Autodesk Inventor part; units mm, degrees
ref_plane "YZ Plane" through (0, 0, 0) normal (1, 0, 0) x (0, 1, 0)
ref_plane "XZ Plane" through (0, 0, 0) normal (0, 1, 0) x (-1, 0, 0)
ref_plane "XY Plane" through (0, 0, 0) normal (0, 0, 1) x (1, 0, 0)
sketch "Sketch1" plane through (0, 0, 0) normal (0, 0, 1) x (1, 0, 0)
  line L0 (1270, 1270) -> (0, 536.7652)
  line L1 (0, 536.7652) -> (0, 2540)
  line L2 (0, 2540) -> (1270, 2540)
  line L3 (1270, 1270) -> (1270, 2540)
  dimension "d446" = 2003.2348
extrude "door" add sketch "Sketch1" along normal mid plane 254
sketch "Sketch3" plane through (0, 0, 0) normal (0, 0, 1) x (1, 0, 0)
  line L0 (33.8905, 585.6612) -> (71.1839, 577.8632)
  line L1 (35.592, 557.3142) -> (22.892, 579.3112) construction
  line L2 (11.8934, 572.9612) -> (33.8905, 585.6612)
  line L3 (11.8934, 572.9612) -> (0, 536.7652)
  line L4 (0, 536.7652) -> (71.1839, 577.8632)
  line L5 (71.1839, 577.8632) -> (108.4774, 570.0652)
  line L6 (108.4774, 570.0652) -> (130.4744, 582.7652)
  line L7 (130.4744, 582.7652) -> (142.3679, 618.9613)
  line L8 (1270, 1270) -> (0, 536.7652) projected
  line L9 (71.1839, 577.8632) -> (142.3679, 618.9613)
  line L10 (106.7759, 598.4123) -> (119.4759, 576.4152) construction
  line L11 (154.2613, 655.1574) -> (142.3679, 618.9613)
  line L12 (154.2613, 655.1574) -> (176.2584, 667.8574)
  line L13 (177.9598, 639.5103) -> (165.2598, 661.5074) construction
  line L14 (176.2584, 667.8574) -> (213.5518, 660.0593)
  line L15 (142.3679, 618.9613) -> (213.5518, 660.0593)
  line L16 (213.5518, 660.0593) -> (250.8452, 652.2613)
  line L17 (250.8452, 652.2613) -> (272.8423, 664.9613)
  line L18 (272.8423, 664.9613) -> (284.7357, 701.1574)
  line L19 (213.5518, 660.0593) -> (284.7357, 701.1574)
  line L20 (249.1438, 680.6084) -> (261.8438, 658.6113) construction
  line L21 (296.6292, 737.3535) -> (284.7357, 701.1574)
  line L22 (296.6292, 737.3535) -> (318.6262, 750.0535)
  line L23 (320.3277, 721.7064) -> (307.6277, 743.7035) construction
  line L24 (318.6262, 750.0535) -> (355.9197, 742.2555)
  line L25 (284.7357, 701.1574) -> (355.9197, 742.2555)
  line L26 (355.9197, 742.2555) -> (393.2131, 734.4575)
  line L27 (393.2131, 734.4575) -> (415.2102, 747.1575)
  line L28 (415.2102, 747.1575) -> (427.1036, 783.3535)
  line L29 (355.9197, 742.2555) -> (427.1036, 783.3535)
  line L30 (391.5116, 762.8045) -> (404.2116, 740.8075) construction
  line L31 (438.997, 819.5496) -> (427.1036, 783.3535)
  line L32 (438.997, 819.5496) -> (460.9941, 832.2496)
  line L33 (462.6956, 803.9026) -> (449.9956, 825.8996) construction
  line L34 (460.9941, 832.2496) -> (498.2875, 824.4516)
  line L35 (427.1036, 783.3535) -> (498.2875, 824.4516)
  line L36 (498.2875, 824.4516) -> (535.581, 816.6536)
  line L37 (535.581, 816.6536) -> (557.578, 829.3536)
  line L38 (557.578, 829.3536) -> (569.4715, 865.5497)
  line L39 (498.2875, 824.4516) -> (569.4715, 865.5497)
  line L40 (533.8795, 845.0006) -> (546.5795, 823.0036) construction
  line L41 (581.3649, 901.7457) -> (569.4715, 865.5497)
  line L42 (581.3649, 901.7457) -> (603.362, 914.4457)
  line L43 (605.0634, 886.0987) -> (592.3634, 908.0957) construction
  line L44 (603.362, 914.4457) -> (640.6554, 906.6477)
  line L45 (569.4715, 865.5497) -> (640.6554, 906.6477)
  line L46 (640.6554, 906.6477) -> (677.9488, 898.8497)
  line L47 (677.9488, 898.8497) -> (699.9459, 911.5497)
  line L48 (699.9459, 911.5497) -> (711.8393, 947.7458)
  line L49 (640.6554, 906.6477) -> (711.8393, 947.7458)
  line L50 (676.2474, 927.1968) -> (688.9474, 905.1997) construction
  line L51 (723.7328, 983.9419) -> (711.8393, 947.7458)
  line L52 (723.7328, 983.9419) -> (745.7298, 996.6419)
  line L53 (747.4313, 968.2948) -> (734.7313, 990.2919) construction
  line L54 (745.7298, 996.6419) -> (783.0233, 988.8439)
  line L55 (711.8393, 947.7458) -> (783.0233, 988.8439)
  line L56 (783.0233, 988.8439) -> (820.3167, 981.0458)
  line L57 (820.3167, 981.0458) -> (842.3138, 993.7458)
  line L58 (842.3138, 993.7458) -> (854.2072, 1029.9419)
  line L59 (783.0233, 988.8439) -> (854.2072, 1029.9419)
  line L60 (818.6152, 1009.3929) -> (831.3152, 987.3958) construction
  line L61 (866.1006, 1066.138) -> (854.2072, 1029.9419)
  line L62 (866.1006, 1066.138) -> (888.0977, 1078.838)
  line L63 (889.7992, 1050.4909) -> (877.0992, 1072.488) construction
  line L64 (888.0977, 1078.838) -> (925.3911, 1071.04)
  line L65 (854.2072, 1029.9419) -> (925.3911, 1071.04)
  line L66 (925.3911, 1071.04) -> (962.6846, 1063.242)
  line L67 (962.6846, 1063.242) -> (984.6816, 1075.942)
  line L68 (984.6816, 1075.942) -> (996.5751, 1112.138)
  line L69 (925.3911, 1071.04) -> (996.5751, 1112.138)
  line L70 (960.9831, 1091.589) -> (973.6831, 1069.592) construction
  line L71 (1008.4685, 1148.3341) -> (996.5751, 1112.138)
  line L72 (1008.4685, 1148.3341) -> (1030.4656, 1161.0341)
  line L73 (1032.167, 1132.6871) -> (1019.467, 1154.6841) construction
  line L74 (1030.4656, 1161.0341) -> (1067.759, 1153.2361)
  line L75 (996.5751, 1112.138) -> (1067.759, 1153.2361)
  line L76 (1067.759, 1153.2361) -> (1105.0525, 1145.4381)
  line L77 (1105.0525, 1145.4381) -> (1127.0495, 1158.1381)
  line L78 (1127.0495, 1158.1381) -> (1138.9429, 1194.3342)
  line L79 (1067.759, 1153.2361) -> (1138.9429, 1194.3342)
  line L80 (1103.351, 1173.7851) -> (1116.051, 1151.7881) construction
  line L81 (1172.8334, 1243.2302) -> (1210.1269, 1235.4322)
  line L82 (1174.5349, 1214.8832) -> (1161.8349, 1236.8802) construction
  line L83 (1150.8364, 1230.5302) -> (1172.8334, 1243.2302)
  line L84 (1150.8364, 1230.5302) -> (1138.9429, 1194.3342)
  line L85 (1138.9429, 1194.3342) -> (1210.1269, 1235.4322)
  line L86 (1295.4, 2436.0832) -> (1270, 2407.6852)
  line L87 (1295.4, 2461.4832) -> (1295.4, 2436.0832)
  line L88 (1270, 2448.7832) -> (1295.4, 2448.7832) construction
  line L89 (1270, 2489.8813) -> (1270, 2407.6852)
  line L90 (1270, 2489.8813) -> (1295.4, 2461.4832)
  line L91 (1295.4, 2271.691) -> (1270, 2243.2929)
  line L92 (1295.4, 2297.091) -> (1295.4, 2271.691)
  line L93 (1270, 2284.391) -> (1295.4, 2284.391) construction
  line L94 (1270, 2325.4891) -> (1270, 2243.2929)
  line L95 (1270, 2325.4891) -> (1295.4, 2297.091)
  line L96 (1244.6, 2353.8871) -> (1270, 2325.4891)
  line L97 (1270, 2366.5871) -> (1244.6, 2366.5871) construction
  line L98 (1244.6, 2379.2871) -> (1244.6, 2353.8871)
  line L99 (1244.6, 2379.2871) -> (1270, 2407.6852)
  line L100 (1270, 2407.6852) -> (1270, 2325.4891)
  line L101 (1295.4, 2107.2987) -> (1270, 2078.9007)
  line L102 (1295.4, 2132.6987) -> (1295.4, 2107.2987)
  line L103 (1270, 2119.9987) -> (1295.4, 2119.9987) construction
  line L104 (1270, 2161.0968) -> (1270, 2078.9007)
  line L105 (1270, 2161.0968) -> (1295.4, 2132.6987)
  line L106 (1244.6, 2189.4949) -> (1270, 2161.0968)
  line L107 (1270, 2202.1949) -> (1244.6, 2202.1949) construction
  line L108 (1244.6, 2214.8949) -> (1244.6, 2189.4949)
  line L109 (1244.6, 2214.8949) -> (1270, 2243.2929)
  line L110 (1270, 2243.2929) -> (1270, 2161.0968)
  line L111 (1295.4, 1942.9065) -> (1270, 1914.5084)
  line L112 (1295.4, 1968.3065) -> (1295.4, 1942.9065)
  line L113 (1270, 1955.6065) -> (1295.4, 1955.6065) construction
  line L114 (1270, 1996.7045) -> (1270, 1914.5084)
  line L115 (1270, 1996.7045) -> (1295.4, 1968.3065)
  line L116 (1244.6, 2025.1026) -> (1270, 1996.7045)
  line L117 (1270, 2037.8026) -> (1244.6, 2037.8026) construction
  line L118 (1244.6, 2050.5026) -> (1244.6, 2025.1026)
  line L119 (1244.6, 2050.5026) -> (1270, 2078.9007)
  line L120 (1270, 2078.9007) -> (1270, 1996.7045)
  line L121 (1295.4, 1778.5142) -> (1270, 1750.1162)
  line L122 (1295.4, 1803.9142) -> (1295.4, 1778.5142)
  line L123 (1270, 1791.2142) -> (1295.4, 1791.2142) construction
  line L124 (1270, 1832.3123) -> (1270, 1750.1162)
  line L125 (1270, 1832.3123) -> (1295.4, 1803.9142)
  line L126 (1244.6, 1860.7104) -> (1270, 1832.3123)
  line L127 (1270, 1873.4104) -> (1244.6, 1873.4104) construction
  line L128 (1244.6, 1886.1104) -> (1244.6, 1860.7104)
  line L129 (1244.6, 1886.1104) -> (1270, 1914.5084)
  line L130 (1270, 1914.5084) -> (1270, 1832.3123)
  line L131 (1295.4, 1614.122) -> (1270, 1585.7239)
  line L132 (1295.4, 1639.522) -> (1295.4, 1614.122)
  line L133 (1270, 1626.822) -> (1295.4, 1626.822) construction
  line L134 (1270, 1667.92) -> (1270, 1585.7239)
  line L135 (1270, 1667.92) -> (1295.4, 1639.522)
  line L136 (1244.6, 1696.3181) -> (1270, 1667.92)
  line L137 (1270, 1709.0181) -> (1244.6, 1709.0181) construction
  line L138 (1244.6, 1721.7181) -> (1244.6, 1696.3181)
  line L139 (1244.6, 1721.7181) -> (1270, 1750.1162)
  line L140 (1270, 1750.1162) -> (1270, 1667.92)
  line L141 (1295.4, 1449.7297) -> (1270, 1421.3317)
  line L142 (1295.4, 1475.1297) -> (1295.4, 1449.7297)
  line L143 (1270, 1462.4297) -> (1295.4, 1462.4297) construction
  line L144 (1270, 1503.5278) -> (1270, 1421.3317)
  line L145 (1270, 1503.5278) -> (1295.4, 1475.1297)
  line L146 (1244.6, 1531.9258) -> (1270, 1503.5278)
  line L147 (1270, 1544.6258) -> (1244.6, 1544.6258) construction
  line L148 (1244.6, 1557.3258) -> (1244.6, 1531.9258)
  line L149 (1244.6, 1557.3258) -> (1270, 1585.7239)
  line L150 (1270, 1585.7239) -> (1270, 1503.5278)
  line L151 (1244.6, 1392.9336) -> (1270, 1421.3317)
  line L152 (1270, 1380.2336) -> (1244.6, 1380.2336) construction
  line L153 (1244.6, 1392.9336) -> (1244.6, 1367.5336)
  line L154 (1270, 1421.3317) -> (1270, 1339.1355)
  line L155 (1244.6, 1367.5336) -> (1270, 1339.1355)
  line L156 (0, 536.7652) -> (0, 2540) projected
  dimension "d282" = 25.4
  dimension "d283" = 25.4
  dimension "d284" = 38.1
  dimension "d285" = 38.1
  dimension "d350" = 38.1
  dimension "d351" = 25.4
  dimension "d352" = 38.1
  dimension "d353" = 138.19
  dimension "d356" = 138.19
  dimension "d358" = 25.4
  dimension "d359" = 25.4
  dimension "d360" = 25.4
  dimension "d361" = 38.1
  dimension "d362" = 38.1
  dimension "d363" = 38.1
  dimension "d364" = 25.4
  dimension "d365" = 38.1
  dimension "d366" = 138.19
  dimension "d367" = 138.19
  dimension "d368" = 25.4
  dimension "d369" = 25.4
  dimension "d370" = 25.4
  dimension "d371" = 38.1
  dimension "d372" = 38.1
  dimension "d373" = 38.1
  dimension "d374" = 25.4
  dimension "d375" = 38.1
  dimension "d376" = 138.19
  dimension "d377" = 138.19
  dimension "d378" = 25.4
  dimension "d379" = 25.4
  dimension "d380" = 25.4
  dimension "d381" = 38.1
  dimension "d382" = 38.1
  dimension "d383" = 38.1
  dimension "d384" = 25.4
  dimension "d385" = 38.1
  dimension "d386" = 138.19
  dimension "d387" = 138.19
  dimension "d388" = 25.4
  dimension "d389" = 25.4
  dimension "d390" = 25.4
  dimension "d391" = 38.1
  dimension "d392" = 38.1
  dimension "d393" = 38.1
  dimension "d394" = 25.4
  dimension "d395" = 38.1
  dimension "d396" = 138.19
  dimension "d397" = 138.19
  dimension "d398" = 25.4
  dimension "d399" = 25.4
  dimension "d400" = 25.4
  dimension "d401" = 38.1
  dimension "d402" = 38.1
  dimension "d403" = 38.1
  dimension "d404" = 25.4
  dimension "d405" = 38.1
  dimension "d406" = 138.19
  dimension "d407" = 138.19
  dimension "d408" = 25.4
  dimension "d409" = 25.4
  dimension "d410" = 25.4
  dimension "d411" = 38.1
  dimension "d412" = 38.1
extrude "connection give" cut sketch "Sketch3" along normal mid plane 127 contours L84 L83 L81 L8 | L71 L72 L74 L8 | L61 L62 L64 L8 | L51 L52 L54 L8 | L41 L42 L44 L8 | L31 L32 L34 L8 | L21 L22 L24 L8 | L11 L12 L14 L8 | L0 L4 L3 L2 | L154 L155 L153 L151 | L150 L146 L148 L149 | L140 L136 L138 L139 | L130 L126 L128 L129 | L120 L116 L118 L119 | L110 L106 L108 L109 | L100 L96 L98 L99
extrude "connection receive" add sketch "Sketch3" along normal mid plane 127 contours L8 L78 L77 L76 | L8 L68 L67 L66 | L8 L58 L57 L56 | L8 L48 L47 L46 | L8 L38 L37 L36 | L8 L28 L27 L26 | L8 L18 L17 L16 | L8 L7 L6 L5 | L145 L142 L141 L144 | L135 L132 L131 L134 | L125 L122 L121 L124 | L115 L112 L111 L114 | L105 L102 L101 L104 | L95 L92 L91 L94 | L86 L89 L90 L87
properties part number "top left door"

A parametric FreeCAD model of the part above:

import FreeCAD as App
import Part
import Sketcher

V = App.Vector
Q = App.Units.Quantity

doc = App.newDocument("Part")
params = doc.addObject("Spreadsheet::Sheet", "Params")
for row, (alias, value) in enumerate([
    ("sketch1_width", "50 in"),
    ("pad1_length", "10 in"),
    ("sketch2_height", "1 in"),
    ("sketch2_length", "1 in"),
    ("sketch2_length2", "1.5 in"),
    ("pocket1_length", "5 in"),
    ("sketch3_height", "1 in"),
    ("sketch3_length", "1 in"),
    ("sketch3_length2", "1.5 in"),
    ("pad2_length", "5 in"),
], start=1):
    params.set(f"A{row}", alias)
    params.set(f"B{row}", "=" + value)
    params.setAlias(f"B{row}", alias)

body = doc.addObject("PartDesign::Body", "Body")

# Sketch on XY plane
sketch1 = body.newObject("Sketcher::SketchObject", "Sketch")
sketch1.AttachmentSupport = (doc.getObject("XY_Plane"), [""])
sketch1.MapMode = "FlatFace"
sketch1.addGeometry(Part.LineSegment(V(0, 537, 0), V(1270, 1270, 0)), False)
sketch1.addGeometry(Part.LineSegment(V(1270, 1270, 0), V(1270, 2540, 0)), False)
sketch1.addGeometry(Part.LineSegment(V(1270, 2540, 0), V(0, 2540, 0)), False)
sketch1.addGeometry(Part.LineSegment(V(0, 2540, 0), V(0, 537, 0)), False)
sketch1.addConstraint(Sketcher.Constraint("Coincident", 0, 2, 1, 1))
sketch1.addConstraint(Sketcher.Constraint("Coincident", 1, 2, 2, 1))
sketch1.addConstraint(Sketcher.Constraint("Coincident", 2, 2, 3, 1))
sketch1.addConstraint(Sketcher.Constraint("Coincident", 3, 2, 0, 1))
sketch1.addConstraint(Sketcher.Constraint("Vertical", 1))
sketch1.addConstraint(Sketcher.Constraint("Horizontal", 2))
sketch1.addConstraint(Sketcher.Constraint("Vertical", 3))
sketch1.addConstraint(Sketcher.Constraint("PointOnObject", 2, 2, -2))
sketch1.addConstraint(Sketcher.Constraint("Equal", 2, 1))
sketch1.addConstraint(Sketcher.Constraint("DistanceX", 2, 2, 2, 1, Q("50 in")))
sketch1.addConstraint(Sketcher.Constraint("DistanceY", 3, 2, 3, 1, Q("78.8675 in")))
sketch1.addConstraint(Sketcher.Constraint("DistanceY", -1, 1, 0, 2, Q("50 in")))
sketch1.setExpression("Constraints[9]", "Params.sketch1_width")
pad1 = body.newObject("PartDesign::Pad", "Pad")
pad1.Profile = sketch1
pad1.setExpression("Length", "Params.pad1_length")
pad1.Midplane = True

# Sketch on XY plane
sketch2 = body.newObject("Sketcher::SketchObject", "Sketch001")
sketch2.AttachmentSupport = (doc.getObject("XY_Plane"), [""])
sketch2.MapMode = "FlatFace"
sketch2.addGeometry(Part.LineSegment(V(1151, 1231, 0), V(1139, 1194, 0)), False)
sketch2.addGeometry(Part.LineSegment(V(1139, 1194, 0), V(1210, 1235, 0)), False)
sketch2.addGeometry(Part.LineSegment(V(1210, 1235, 0), V(1173, 1243, 0)), False)
sketch2.addGeometry(Part.LineSegment(V(1173, 1243, 0), V(1151, 1231, 0)), False)
sketch2.addGeometry(Part.LineSegment(V(1008, 1148, 0), V(997, 1112, 0)), False)
sketch2.addGeometry(Part.LineSegment(V(997, 1112, 0), V(1068, 1153, 0)), False)
sketch2.addGeometry(Part.LineSegment(V(1068, 1153, 0), V(1030, 1161, 0)), False)
sketch2.addGeometry(Part.LineSegment(V(1030, 1161, 0), V(1008, 1148, 0)), False)
sketch2.addGeometry(Part.LineSegment(V(866, 1066, 0), V(854, 1030, 0)), False)
sketch2.addGeometry(Part.LineSegment(V(854, 1030, 0), V(925, 1071, 0)), False)
sketch2.addGeometry(Part.LineSegment(V(925, 1071, 0), V(888, 1079, 0)), False)
sketch2.addGeometry(Part.LineSegment(V(888, 1079, 0), V(866, 1066, 0)), False)
sketch2.addGeometry(Part.LineSegment(V(724, 984, 0), V(712, 948, 0)), False)
sketch2.addGeometry(Part.LineSegment(V(712, 948, 0), V(783, 989, 0)), False)
sketch2.addGeometry(Part.LineSegment(V(783, 989, 0), V(746, 997, 0)), False)
sketch2.addGeometry(Part.LineSegment(V(746, 997, 0), V(724, 984, 0)), False)
sketch2.addGeometry(Part.LineSegment(V(581, 902, 0), V(569, 866, 0)), False)
sketch2.addGeometry(Part.LineSegment(V(569, 866, 0), V(641, 907, 0)), False)
sketch2.addGeometry(Part.LineSegment(V(641, 907, 0), V(603, 914, 0)), False)
sketch2.addGeometry(Part.LineSegment(V(603, 914, 0), V(581, 902, 0)), False)
sketch2.addGeometry(Part.LineSegment(V(439, 820, 0), V(427, 783, 0)), False)
sketch2.addGeometry(Part.LineSegment(V(427, 783, 0), V(498, 824, 0)), False)
sketch2.addGeometry(Part.LineSegment(V(498, 824, 0), V(461, 832, 0)), False)
sketch2.addGeometry(Part.LineSegment(V(461, 832, 0), V(439, 820, 0)), False)
sketch2.addGeometry(Part.LineSegment(V(297, 737, 0), V(285, 701, 0)), False)
sketch2.addGeometry(Part.LineSegment(V(285, 701, 0), V(356, 742, 0)), False)
sketch2.addGeometry(Part.LineSegment(V(356, 742, 0), V(319, 750, 0)), False)
sketch2.addGeometry(Part.LineSegment(V(319, 750, 0), V(297, 737, 0)), False)
sketch2.addGeometry(Part.LineSegment(V(154, 655, 0), V(142, 619, 0)), False)
sketch2.addGeometry(Part.LineSegment(V(142, 619, 0), V(214, 660, 0)), False)
sketch2.addGeometry(Part.LineSegment(V(214, 660, 0), V(176, 668, 0)), False)
sketch2.addGeometry(Part.LineSegment(V(176, 668, 0), V(154, 655, 0)), False)
sketch2.addGeometry(Part.LineSegment(V(71, 578, 0), V(34, 586, 0)), False)
sketch2.addGeometry(Part.LineSegment(V(34, 586, 0), V(12, 573, 0)), False)
sketch2.addGeometry(Part.LineSegment(V(12, 573, 0), V(0, 537, 0)), False)
sketch2.addGeometry(Part.LineSegment(V(0, 537, 0), V(71, 578, 0)), False)
sketch2.addGeometry(Part.LineSegment(V(1270, 1339, 0), V(1270, 1421, 0)), False)
sketch2.addGeometry(Part.LineSegment(V(1270, 1421, 0), V(1245, 1393, 0)), False)
sketch2.addGeometry(Part.LineSegment(V(1245, 1393, 0), V(1245, 1368, 0)), False)
sketch2.addGeometry(Part.LineSegment(V(1245, 1368, 0), V(1270, 1339, 0)), False)
sketch2.addGeometry(Part.LineSegment(V(1270, 1504, 0), V(1270, 1586, 0)), False)
sketch2.addGeometry(Part.LineSegment(V(1270, 1586, 0), V(1245, 1557, 0)), False)
sketch2.addGeometry(Part.LineSegment(V(1245, 1557, 0), V(1245, 1532, 0)), False)
sketch2.addGeometry(Part.LineSegment(V(1245, 1532, 0), V(1270, 1504, 0)), False)
sketch2.addGeometry(Part.LineSegment(V(1270, 1668, 0), V(1270, 1750, 0)), False)
sketch2.addGeometry(Part.LineSegment(V(1270, 1750, 0), V(1245, 1722, 0)), False)
sketch2.addGeometry(Part.LineSegment(V(1245, 1722, 0), V(1245, 1696, 0)), False)
sketch2.addGeometry(Part.LineSegment(V(1245, 1696, 0), V(1270, 1668, 0)), False)
sketch2.addGeometry(Part.LineSegment(V(1270, 1832, 0), V(1270, 1915, 0)), False)
sketch2.addGeometry(Part.LineSegment(V(1270, 1915, 0), V(1245, 1886, 0)), False)
sketch2.addGeometry(Part.LineSegment(V(1245, 1886, 0), V(1245, 1861, 0)), False)
sketch2.addGeometry(Part.LineSegment(V(1245, 1861, 0), V(1270, 1832, 0)), False)
sketch2.addGeometry(Part.LineSegment(V(1270, 1997, 0), V(1270, 2079, 0)), False)
sketch2.addGeometry(Part.LineSegment(V(1270, 2079, 0), V(1245, 2051, 0)), False)
sketch2.addGeometry(Part.LineSegment(V(1245, 2051, 0), V(1245, 2025, 0)), False)
sketch2.addGeometry(Part.LineSegment(V(1245, 2025, 0), V(1270, 1997, 0)), False)
sketch2.addGeometry(Part.LineSegment(V(1270, 2161, 0), V(1270, 2243, 0)), False)
sketch2.addGeometry(Part.LineSegment(V(1270, 2243, 0), V(1245, 2215, 0)), False)
sketch2.addGeometry(Part.LineSegment(V(1245, 2215, 0), V(1245, 2189, 0)), False)
sketch2.addGeometry(Part.LineSegment(V(1245, 2189, 0), V(1270, 2161, 0)), False)
sketch2.addGeometry(Part.LineSegment(V(1270, 2325, 0), V(1270, 2408, 0)), False)
sketch2.addGeometry(Part.LineSegment(V(1270, 2408, 0), V(1245, 2379, 0)), False)
sketch2.addGeometry(Part.LineSegment(V(1245, 2379, 0), V(1245, 2354, 0)), False)
sketch2.addGeometry(Part.LineSegment(V(1245, 2354, 0), V(1270, 2325, 0)), False)
sketch2.addConstraint(Sketcher.Constraint("Coincident", 0, 2, 1, 1))
sketch2.addConstraint(Sketcher.Constraint("Coincident", 1, 2, 2, 1))
sketch2.addConstraint(Sketcher.Constraint("Coincident", 2, 2, 3, 1))
sketch2.addConstraint(Sketcher.Constraint("Coincident", 3, 2, 0, 1))
sketch2.addConstraint(Sketcher.Constraint("Coincident", 4, 2, 5, 1))
sketch2.addConstraint(Sketcher.Constraint("Coincident", 5, 2, 6, 1))
sketch2.addConstraint(Sketcher.Constraint("Coincident", 6, 2, 7, 1))
sketch2.addConstraint(Sketcher.Constraint("Coincident", 7, 2, 4, 1))
sketch2.addConstraint(Sketcher.Constraint("Coincident", 8, 2, 9, 1))
sketch2.addConstraint(Sketcher.Constraint("Coincident", 9, 2, 10, 1))
sketch2.addConstraint(Sketcher.Constraint("Coincident", 10, 2, 11, 1))
sketch2.addConstraint(Sketcher.Constraint("Coincident", 11, 2, 8, 1))
sketch2.addConstraint(Sketcher.Constraint("Coincident", 12, 2, 13, 1))
sketch2.addConstraint(Sketcher.Constraint("Coincident", 13, 2, 14, 1))
sketch2.addConstraint(Sketcher.Constraint("Coincident", 14, 2, 15, 1))
sketch2.addConstraint(Sketcher.Constraint("Coincident", 15, 2, 12, 1))
sketch2.addConstraint(Sketcher.Constraint("Coincident", 16, 2, 17, 1))
sketch2.addConstraint(Sketcher.Constraint("Coincident", 17, 2, 18, 1))
sketch2.addConstraint(Sketcher.Constraint("Coincident", 18, 2, 19, 1))
sketch2.addConstraint(Sketcher.Constraint("Coincident", 19, 2, 16, 1))
sketch2.addConstraint(Sketcher.Constraint("Coincident", 20, 2, 21, 1))
sketch2.addConstraint(Sketcher.Constraint("Coincident", 21, 2, 22, 1))
sketch2.addConstraint(Sketcher.Constraint("Coincident", 22, 2, 23, 1))
sketch2.addConstraint(Sketcher.Constraint("Coincident", 23, 2, 20, 1))
sketch2.addConstraint(Sketcher.Constraint("Coincident", 24, 2, 25, 1))
sketch2.addConstraint(Sketcher.Constraint("Coincident", 25, 2, 26, 1))
sketch2.addConstraint(Sketcher.Constraint("Coincident", 26, 2, 27, 1))
sketch2.addConstraint(Sketcher.Constraint("Coincident", 27, 2, 24, 1))
sketch2.addConstraint(Sketcher.Constraint("Coincident", 28, 2, 29, 1))
sketch2.addConstraint(Sketcher.Constraint("Coincident", 29, 2, 30, 1))
sketch2.addConstraint(Sketcher.Constraint("Coincident", 30, 2, 31, 1))
sketch2.addConstraint(Sketcher.Constraint("Coincident", 31, 2, 28, 1))
sketch2.addConstraint(Sketcher.Constraint("Coincident", 32, 2, 33, 1))
sketch2.addConstraint(Sketcher.Constraint("Coincident", 33, 2, 34, 1))
sketch2.addConstraint(Sketcher.Constraint("Coincident", 34, 2, 35, 1))
sketch2.addConstraint(Sketcher.Constraint("Coincident", 35, 2, 32, 1))
sketch2.addConstraint(Sketcher.Constraint("Coincident", 36, 2, 37, 1))
sketch2.addConstraint(Sketcher.Constraint("Coincident", 37, 2, 38, 1))
sketch2.addConstraint(Sketcher.Constraint("Coincident", 38, 2, 39, 1))
sketch2.addConstraint(Sketcher.Constraint("Coincident", 39, 2, 36, 1))
sketch2.addConstraint(Sketcher.Constraint("Coincident", 40, 2, 41, 1))
sketch2.addConstraint(Sketcher.Constraint("Coincident", 41, 2, 42, 1))
sketch2.addConstraint(Sketcher.Constraint("Coincident", 42, 2, 43, 1))
sketch2.addConstraint(Sketcher.Constraint("Coincident", 43, 2, 40, 1))
sketch2.addConstraint(Sketcher.Constraint("Coincident", 44, 2, 45, 1))
sketch2.addConstraint(Sketcher.Constraint("Coincident", 45, 2, 46, 1))
sketch2.addConstraint(Sketcher.Constraint("Coincident", 46, 2, 47, 1))
sketch2.addConstraint(Sketcher.Constraint("Coincident", 47, 2, 44, 1))
sketch2.addConstraint(Sketcher.Constraint("Coincident", 48, 2, 49, 1))
sketch2.addConstraint(Sketcher.Constraint("Coincident", 49, 2, 50, 1))
sketch2.addConstraint(Sketcher.Constraint("Coincident", 50, 2, 51, 1))
sketch2.addConstraint(Sketcher.Constraint("Coincident", 51, 2, 48, 1))
sketch2.addConstraint(Sketcher.Constraint("Coincident", 52, 2, 53, 1))
sketch2.addConstraint(Sketcher.Constraint("Coincident", 53, 2, 54, 1))
sketch2.addConstraint(Sketcher.Constraint("Coincident", 54, 2, 55, 1))
sketch2.addConstraint(Sketcher.Constraint("Coincident", 55, 2, 52, 1))
sketch2.addConstraint(Sketcher.Constraint("Coincident", 56, 2, 57, 1))
sketch2.addConstraint(Sketcher.Constraint("Coincident", 57, 2, 58, 1))
sketch2.addConstraint(Sketcher.Constraint("Coincident", 58, 2, 59, 1))
sketch2.addConstraint(Sketcher.Constraint("Coincident", 59, 2, 56, 1))
sketch2.addConstraint(Sketcher.Constraint("Coincident", 60, 2, 61, 1))
sketch2.addConstraint(Sketcher.Constraint("Coincident", 61, 2, 62, 1))
sketch2.addConstraint(Sketcher.Constraint("Coincident", 62, 2, 63, 1))
sketch2.addConstraint(Sketcher.Constraint("Coincident", 63, 2, 60, 1))
sketch2.addConstraint(Sketcher.Constraint("Vertical", 36))
sketch2.addConstraint(Sketcher.Constraint("Vertical", 38))
sketch2.addConstraint(Sketcher.Constraint("Vertical", 40))
sketch2.addConstraint(Sketcher.Constraint("Vertical", 42))
sketch2.addConstraint(Sketcher.Constraint("Vertical", 44))
sketch2.addConstraint(Sketcher.Constraint("Vertical", 46))
sketch2.addConstraint(Sketcher.Constraint("Vertical", 48))
sketch2.addConstraint(Sketcher.Constraint("Vertical", 50))
sketch2.addConstraint(Sketcher.Constraint("Vertical", 52))
sketch2.addConstraint(Sketcher.Constraint("Vertical", 54))
sketch2.addConstraint(Sketcher.Constraint("Vertical", 56))
sketch2.addConstraint(Sketcher.Constraint("Vertical", 58))
sketch2.addConstraint(Sketcher.Constraint("Vertical", 60))
sketch2.addConstraint(Sketcher.Constraint("Vertical", 62))
sketch2.addConstraint(Sketcher.Constraint("PointOnObject", 34, 2, -2))
sketch2.addConstraint(Sketcher.Constraint("Parallel", 1, 3))
sketch2.addConstraint(Sketcher.Constraint("Parallel", 0, 4))
sketch2.addConstraint(Sketcher.Constraint("Parallel", 3, 5))
sketch2.addConstraint(Sketcher.Constraint("Parallel", 2, 6))
sketch2.addConstraint(Sketcher.Constraint("Parallel", 5, 7))
sketch2.addConstraint(Sketcher.Constraint("Parallel", 4, 8))
sketch2.addConstraint(Sketcher.Constraint("Parallel", 7, 9))
sketch2.addConstraint(Sketcher.Constraint("Parallel", 6, 10))
sketch2.addConstraint(Sketcher.Constraint("Parallel", 9, 11))
sketch2.addConstraint(Sketcher.Constraint("Parallel", 8, 12))
sketch2.addConstraint(Sketcher.Constraint("Parallel", 11, 13))
sketch2.addConstraint(Sketcher.Constraint("Parallel", 10, 14))
sketch2.addConstraint(Sketcher.Constraint("Parallel", 13, 15))
sketch2.addConstraint(Sketcher.Constraint("Parallel", 12, 16))
sketch2.addConstraint(Sketcher.Constraint("Parallel", 15, 17))
sketch2.addConstraint(Sketcher.Constraint("Parallel", 14, 18))
sketch2.addConstraint(Sketcher.Constraint("Parallel", 17, 19))
sketch2.addConstraint(Sketcher.Constraint("Parallel", 16, 20))
sketch2.addConstraint(Sketcher.Constraint("Parallel", 19, 21))
sketch2.addConstraint(Sketcher.Constraint("Parallel", 18, 22))
sketch2.addConstraint(Sketcher.Constraint("Parallel", 21, 23))
sketch2.addConstraint(Sketcher.Constraint("Parallel", 20, 24))
sketch2.addConstraint(Sketcher.Constraint("Parallel", 23, 25))
sketch2.addConstraint(Sketcher.Constraint("Parallel", 22, 26))
sketch2.addConstraint(Sketcher.Constraint("Parallel", 25, 27))
sketch2.addConstraint(Sketcher.Constraint("Parallel", 24, 28))
sketch2.addConstraint(Sketcher.Constraint("Parallel", 27, 29))
sketch2.addConstraint(Sketcher.Constraint("Parallel", 26, 30))
sketch2.addConstraint(Sketcher.Constraint("Parallel", 29, 31))
sketch2.addConstraint(Sketcher.Constraint("Parallel", 30, 32))
sketch2.addConstraint(Sketcher.Constraint("Parallel", 31, 33))
sketch2.addConstraint(Sketcher.Constraint("Parallel", 28, 34))
sketch2.addConstraint(Sketcher.Constraint("Parallel", 33, 35))
sketch2.addConstraint(Sketcher.Constraint("Parallel", 37, 41))
sketch2.addConstraint(Sketcher.Constraint("Parallel", 39, 43))
sketch2.addConstraint(Sketcher.Constraint("Parallel", 41, 45))
sketch2.addConstraint(Sketcher.Constraint("Parallel", 43, 47))
sketch2.addConstraint(Sketcher.Constraint("Parallel", 45, 49))
sketch2.addConstraint(Sketcher.Constraint("Parallel", 47, 51))
sketch2.addConstraint(Sketcher.Constraint("Parallel", 49, 53))
sketch2.addConstraint(Sketcher.Constraint("Parallel", 51, 55))
sketch2.addConstraint(Sketcher.Constraint("Parallel", 53, 57))
sketch2.addConstraint(Sketcher.Constraint("Parallel", 55, 59))
sketch2.addConstraint(Sketcher.Constraint("Parallel", 57, 61))
sketch2.addConstraint(Sketcher.Constraint("Parallel", 59, 63))
sketch2.addConstraint(Sketcher.Constraint("Vertical", 39, 2, 40, 2))
sketch2.addConstraint(Sketcher.Constraint("Vertical", 38, 2, 41, 2))
sketch2.addConstraint(Sketcher.Constraint("Vertical", 43, 2, 44, 2))
sketch2.addConstraint(Sketcher.Constraint("Vertical", 42, 2, 45, 2))
sketch2.addConstraint(Sketcher.Constraint("Vertical", 47, 2, 48, 2))
sketch2.addConstraint(Sketcher.Constraint("Vertical", 46, 2, 49, 2))
sketch2.addConstraint(Sketcher.Constraint("Vertical", 51, 2, 52, 2))
sketch2.addConstraint(Sketcher.Constraint("Vertical", 50, 2, 53, 2))
sketch2.addConstraint(Sketcher.Constraint("Vertical", 55, 2, 56, 2))
sketch2.addConstraint(Sketcher.Constraint("Vertical", 54, 2, 57, 2))
sketch2.addConstraint(Sketcher.Constraint("Vertical", 59, 2, 60, 2))
sketch2.addConstraint(Sketcher.Constraint("Vertical", 58, 2, 61, 2))
sketch2.addConstraint(Sketcher.Constraint("Equal", 36, 40))
sketch2.addConstraint(Sketcher.Constraint("Equal", 40, 44))
sketch2.addConstraint(Sketcher.Constraint("Equal", 44, 48))
sketch2.addConstraint(Sketcher.Constraint("Equal", 48, 52))
sketch2.addConstraint(Sketcher.Constraint("Equal", 52, 56))
sketch2.addConstraint(Sketcher.Constraint("Equal", 56, 60))
sketch2.addConstraint(Sketcher.Constraint("Equal", 0, 2))
sketch2.addConstraint(Sketcher.Constraint("Equal", 2, 4))
sketch2.addConstraint(Sketcher.Constraint("Equal", 1, 5))
sketch2.addConstraint(Sketcher.Constraint("Equal", 6, 8))
sketch2.addConstraint(Sketcher.Constraint("Equal", 5, 9))
sketch2.addConstraint(Sketcher.Constraint("Equal", 10, 12))
sketch2.addConstraint(Sketcher.Constraint("Equal", 9, 13))
sketch2.addConstraint(Sketcher.Constraint("Equal", 14, 16))
sketch2.addConstraint(Sketcher.Constraint("Equal", 13, 17))
sketch2.addConstraint(Sketcher.Constraint("Equal", 18, 20))
sketch2.addConstraint(Sketcher.Constraint("Equal", 17, 21))
sketch2.addConstraint(Sketcher.Constraint("Equal", 22, 24))
sketch2.addConstraint(Sketcher.Constraint("Equal", 21, 25))
sketch2.addConstraint(Sketcher.Constraint("Equal", 26, 28))
sketch2.addConstraint(Sketcher.Constraint("Equal", 25, 29))
sketch2.addConstraint(Sketcher.Constraint("Equal", 30, 32))
sketch2.addConstraint(Sketcher.Constraint("Equal", 31, 33))
sketch2.addConstraint(Sketcher.Constraint("Equal", 34, 37))
sketch2.addConstraint(Sketcher.Constraint("Equal", 37, 39))
sketch2.addConstraint(Sketcher.Constraint("DistanceY", 38, 2, 38, 1, Q("1 in")))
sketch2.addConstraint(Sketcher.Constraint("Distance", 3, Q("1 in")))
sketch2.addConstraint(Sketcher.Constraint("Distance", 0, Q("1.5 in")))
sketch2.addConstraint(Sketcher.Constraint("DistanceX", -1, 1, 36, 2, Q("50 in")))
sketch2.addConstraint(Sketcher.Constraint("DistanceX", -1, 1, 37, 2, Q("49 in")))
sketch2.addConstraint(Sketcher.Constraint("Angle", 1, Q("30 deg")))
sketch2.addConstraint(Sketcher.Constraint("DistanceY", -1, 1, 6, 2, Q("45.71 in")))
sketch2.addConstraint(Sketcher.Constraint("Angle", 0, Q("-108.1898 deg")))
sketch2.addConstraint(Sketcher.Constraint("DistanceY", -1, 1, 43, 2, Q("59.194 in")))
sketch2.addConstraint(Sketcher.Constraint("DistanceX", -1, 1, 1, 2, Q("47.6428 in")))
sketch2.addConstraint(Sketcher.Constraint("DistanceX", -1, 1, 6, 2, Q("40.5695 in")))
sketch2.addConstraint(Sketcher.Constraint("DistanceX", -1, 1, 8, 2, Q("33.6302 in")))
sketch2.addConstraint(Sketcher.Constraint("DistanceY", -1, 1, 8, 2, Q("40.5489 in")))
sketch2.addConstraint(Sketcher.Constraint("DistanceX", -1, 1, 13, 2, Q("30.8277 in")))
sketch2.addConstraint(Sketcher.Constraint("DistanceY", -1, 1, 17, 2, Q("35.6948 in")))
sketch2.addConstraint(Sketcher.Constraint("DistanceX", -1, 1, 18, 2, Q("23.7544 in")))
sketch2.addConstraint(Sketcher.Constraint("DistanceX", -1, 1, 20, 2, Q("16.8151 in")))
sketch2.addConstraint(Sketcher.Constraint("DistanceY", -1, 1, 20, 2, Q("30.8407 in")))
sketch2.addConstraint(Sketcher.Constraint("DistanceY", -1, 1, 29, 2, Q("25.9866 in")))
sketch2.addConstraint(Sketcher.Constraint("DistanceX", -1, 1, 30, 2, Q("6.9393 in")))
sketch2.addConstraint(Sketcher.Constraint("DistanceY", -1, 1, 34, 2, Q("21.1325 in")))
sketch2.addConstraint(Sketcher.Constraint("DistanceY", -1, 1, 37, 2, Q("54.8399 in")))
sketch2.addConstraint(Sketcher.Constraint("DistanceY", -1, 1, 63, 2, Q("91.5547 in")))
sketch2.addConstraint(Sketcher.Constraint("DistanceY", -1, 1, 0, 2, 1194.3342))
sketch2.addConstraint(Sketcher.Constraint("DistanceY", -1, 1, 12, 2, 947.7458))
sketch2.addConstraint(Sketcher.Constraint("DistanceX", -1, 1, 24, 2, 284.7357))
sketch2.addConstraint(Sketcher.Constraint("DistanceY", -1, 1, 24, 2, 701.1574))
sketch2.addConstraint(Sketcher.Constraint("DistanceY", -1, 1, 44, 2, 1750.1162))
sketch2.addConstraint(Sketcher.Constraint("DistanceY", -1, 1, 48, 2, 1914.5084))
sketch2.addConstraint(Sketcher.Constraint("DistanceY", -1, 1, 52, 2, 2078.9007))
sketch2.addConstraint(Sketcher.Constraint("DistanceY", -1, 1, 56, 2, 2243.293))
sketch2.setExpression("Constraints[161]", "Params.sketch2_height")
sketch2.setExpression("Constraints[162]", "Params.sketch2_length")
sketch2.setExpression("Constraints[163]", "Params.sketch2_length2")
pocket1 = body.newObject("PartDesign::Pocket", "Pocket")
pocket1.Profile = sketch2
pocket1.setExpression("Length", "Params.pocket1_length")
pocket1.Midplane = True

# Sketch on XY plane
sketch3 = body.newObject("Sketcher::SketchObject", "Sketch002")
sketch3.AttachmentSupport = (doc.getObject("XY_Plane"), [""])
sketch3.MapMode = "FlatFace"
sketch3.addGeometry(Part.LineSegment(V(1139, 1194, 0), V(1068, 1153, 0)), False)
sketch3.addGeometry(Part.LineSegment(V(1068, 1153, 0), V(1105, 1145, 0)), False)
sketch3.addGeometry(Part.LineSegment(V(1105, 1145, 0), V(1127, 1158, 0)), False)
sketch3.addGeometry(Part.LineSegment(V(1127, 1158, 0), V(1139, 1194, 0)), False)
sketch3.addGeometry(Part.LineSegment(V(997, 1112, 0), V(925, 1071, 0)), False)
sketch3.addGeometry(Part.LineSegment(V(925, 1071, 0), V(963, 1063, 0)), False)
sketch3.addGeometry(Part.LineSegment(V(963, 1063, 0), V(985, 1076, 0)), False)
sketch3.addGeometry(Part.LineSegment(V(985, 1076, 0), V(997, 1112, 0)), False)
sketch3.addGeometry(Part.LineSegment(V(854, 1030, 0), V(783, 989, 0)), False)
sketch3.addGeometry(Part.LineSegment(V(783, 989, 0), V(820, 981, 0)), False)
sketch3.addGeometry(Part.LineSegment(V(820, 981, 0), V(842, 994, 0)), False)
sketch3.addGeometry(Part.LineSegment(V(842, 994, 0), V(854, 1030, 0)), False)
sketch3.addGeometry(Part.LineSegment(V(712, 948, 0), V(641, 907, 0)), False)
sketch3.addGeometry(Part.LineSegment(V(641, 907, 0), V(678, 899, 0)), False)
sketch3.addGeometry(Part.LineSegment(V(678, 899, 0), V(700, 912, 0)), False)
sketch3.addGeometry(Part.LineSegment(V(700, 912, 0), V(712, 948, 0)), False)
sketch3.addGeometry(Part.LineSegment(V(569, 866, 0), V(498, 824, 0)), False)
sketch3.addGeometry(Part.LineSegment(V(498, 824, 0), V(536, 817, 0)), False)
sketch3.addGeometry(Part.LineSegment(V(536, 817, 0), V(558, 829, 0)), False)
sketch3.addGeometry(Part.LineSegment(V(558, 829, 0), V(569, 866, 0)), False)
sketch3.addGeometry(Part.LineSegment(V(427, 783, 0), V(356, 742, 0)), False)
sketch3.addGeometry(Part.LineSegment(V(356, 742, 0), V(393, 734, 0)), False)
sketch3.addGeometry(Part.LineSegment(V(393, 734, 0), V(415, 747, 0)), False)
sketch3.addGeometry(Part.LineSegment(V(415, 747, 0), V(427, 783, 0)), False)
sketch3.addGeometry(Part.LineSegment(V(285, 701, 0), V(214, 660, 0)), False)
sketch3.addGeometry(Part.LineSegment(V(214, 660, 0), V(251, 652, 0)), False)
sketch3.addGeometry(Part.LineSegment(V(251, 652, 0), V(273, 665, 0)), False)
sketch3.addGeometry(Part.LineSegment(V(273, 665, 0), V(285, 701, 0)), False)
sketch3.addGeometry(Part.LineSegment(V(142, 619, 0), V(71, 578, 0)), False)
sketch3.addGeometry(Part.LineSegment(V(71, 578, 0), V(108, 570, 0)), False)
sketch3.addGeometry(Part.LineSegment(V(108, 570, 0), V(130, 583, 0)), False)
sketch3.addGeometry(Part.LineSegment(V(130, 583, 0), V(142, 619, 0)), False)
sketch3.addGeometry(Part.LineSegment(V(1295, 1475, 0), V(1270, 1504, 0)), False)
sketch3.addGeometry(Part.LineSegment(V(1270, 1504, 0), V(1270, 1421, 0)), False)
sketch3.addGeometry(Part.LineSegment(V(1270, 1421, 0), V(1295, 1450, 0)), False)
sketch3.addGeometry(Part.LineSegment(V(1295, 1450, 0), V(1295, 1475, 0)), False)
sketch3.addGeometry(Part.LineSegment(V(1295, 1640, 0), V(1270, 1668, 0)), False)
sketch3.addGeometry(Part.LineSegment(V(1270, 1668, 0), V(1270, 1586, 0)), False)
sketch3.addGeometry(Part.LineSegment(V(1270, 1586, 0), V(1295, 1614, 0)), False)
sketch3.addGeometry(Part.LineSegment(V(1295, 1614, 0), V(1295, 1640, 0)), False)
sketch3.addGeometry(Part.LineSegment(V(1295, 1804, 0), V(1270, 1832, 0)), False)
sketch3.addGeometry(Part.LineSegment(V(1270, 1832, 0), V(1270, 1750, 0)), False)
sketch3.addGeometry(Part.LineSegment(V(1270, 1750, 0), V(1295, 1779, 0)), False)
sketch3.addGeometry(Part.LineSegment(V(1295, 1779, 0), V(1295, 1804, 0)), False)
sketch3.addGeometry(Part.LineSegment(V(1295, 1968, 0), V(1270, 1997, 0)), False)
sketch3.addGeometry(Part.LineSegment(V(1270, 1997, 0), V(1270, 1915, 0)), False)
sketch3.addGeometry(Part.LineSegment(V(1270, 1915, 0), V(1295, 1943, 0)), False)
sketch3.addGeometry(Part.LineSegment(V(1295, 1943, 0), V(1295, 1968, 0)), False)
sketch3.addGeometry(Part.LineSegment(V(1295, 2133, 0), V(1270, 2161, 0)), False)
sketch3.addGeometry(Part.LineSegment(V(1270, 2161, 0), V(1270, 2079, 0)), False)
sketch3.addGeometry(Part.LineSegment(V(1270, 2079, 0), V(1295, 2107, 0)), False)
sketch3.addGeometry(Part.LineSegment(V(1295, 2107, 0), V(1295, 2133, 0)), False)
sketch3.addGeometry(Part.LineSegment(V(1295, 2297, 0), V(1270, 2325, 0)), False)
sketch3.addGeometry(Part.LineSegment(V(1270, 2325, 0), V(1270, 2243, 0)), False)
sketch3.addGeometry(Part.LineSegment(V(1270, 2243, 0), V(1295, 2272, 0)), False)
sketch3.addGeometry(Part.LineSegment(V(1295, 2272, 0), V(1295, 2297, 0)), False)
sketch3.addGeometry(Part.LineSegment(V(1270, 2408, 0), V(1295, 2436, 0)), False)
sketch3.addGeometry(Part.LineSegment(V(1295, 2436, 0), V(1295, 2461, 0)), False)
sketch3.addGeometry(Part.LineSegment(V(1295, 2461, 0), V(1270, 2490, 0)), False)
sketch3.addGeometry(Part.LineSegment(V(1270, 2490, 0), V(1270, 2408, 0)), False)
sketch3.addConstraint(Sketcher.Constraint("Coincident", 0, 2, 1, 1))
sketch3.addConstraint(Sketcher.Constraint("Coincident", 1, 2, 2, 1))
sketch3.addConstraint(Sketcher.Constraint("Coincident", 2, 2, 3, 1))
sketch3.addConstraint(Sketcher.Constraint("Coincident", 3, 2, 0, 1))
sketch3.addConstraint(Sketcher.Constraint("Coincident", 4, 2, 5, 1))
sketch3.addConstraint(Sketcher.Constraint("Coincident", 5, 2, 6, 1))
sketch3.addConstraint(Sketcher.Constraint("Coincident", 6, 2, 7, 1))
sketch3.addConstraint(Sketcher.Constraint("Coincident", 7, 2, 4, 1))
sketch3.addConstraint(Sketcher.Constraint("Coincident", 8, 2, 9, 1))
sketch3.addConstraint(Sketcher.Constraint("Coincident", 9, 2, 10, 1))
sketch3.addConstraint(Sketcher.Constraint("Coincident", 10, 2, 11, 1))
sketch3.addConstraint(Sketcher.Constraint("Coincident", 11, 2, 8, 1))
sketch3.addConstraint(Sketcher.Constraint("Coincident", 12, 2, 13, 1))
sketch3.addConstraint(Sketcher.Constraint("Coincident", 13, 2, 14, 1))
sketch3.addConstraint(Sketcher.Constraint("Coincident", 14, 2, 15, 1))
sketch3.addConstraint(Sketcher.Constraint("Coincident", 15, 2, 12, 1))
sketch3.addConstraint(Sketcher.Constraint("Coincident", 16, 2, 17, 1))
sketch3.addConstraint(Sketcher.Constraint("Coincident", 17, 2, 18, 1))
sketch3.addConstraint(Sketcher.Constraint("Coincident", 18, 2, 19, 1))
sketch3.addConstraint(Sketcher.Constraint("Coincident", 19, 2, 16, 1))
sketch3.addConstraint(Sketcher.Constraint("Coincident", 20, 2, 21, 1))
sketch3.addConstraint(Sketcher.Constraint("Coincident", 21, 2, 22, 1))
sketch3.addConstraint(Sketcher.Constraint("Coincident", 22, 2, 23, 1))
sketch3.addConstraint(Sketcher.Constraint("Coincident", 23, 2, 20, 1))
sketch3.addConstraint(Sketcher.Constraint("Coincident", 24, 2, 25, 1))
sketch3.addConstraint(Sketcher.Constraint("Coincident", 25, 2, 26, 1))
sketch3.addConstraint(Sketcher.Constraint("Coincident", 26, 2, 27, 1))
sketch3.addConstraint(Sketcher.Constraint("Coincident", 27, 2, 24, 1))
sketch3.addConstraint(Sketcher.Constraint("Coincident", 28, 2, 29, 1))
sketch3.addConstraint(Sketcher.Constraint("Coincident", 29, 2, 30, 1))
sketch3.addConstraint(Sketcher.Constraint("Coincident", 30, 2, 31, 1))
sketch3.addConstraint(Sketcher.Constraint("Coincident", 31, 2, 28, 1))
sketch3.addConstraint(Sketcher.Constraint("Coincident", 32, 2, 33, 1))
sketch3.addConstraint(Sketcher.Constraint("Coincident", 33, 2, 34, 1))
sketch3.addConstraint(Sketcher.Constraint("Coincident", 34, 2, 35, 1))
sketch3.addConstraint(Sketcher.Constraint("Coincident", 35, 2, 32, 1))
sketch3.addConstraint(Sketcher.Constraint("Coincident", 36, 2, 37, 1))
sketch3.addConstraint(Sketcher.Constraint("Coincident", 37, 2, 38, 1))
sketch3.addConstraint(Sketcher.Constraint("Coincident", 38, 2, 39, 1))
sketch3.addConstraint(Sketcher.Constraint("Coincident", 39, 2, 36, 1))
sketch3.addConstraint(Sketcher.Constraint("Coincident", 40, 2, 41, 1))
sketch3.addConstraint(Sketcher.Constraint("Coincident", 41, 2, 42, 1))
sketch3.addConstraint(Sketcher.Constraint("Coincident", 42, 2, 43, 1))
sketch3.addConstraint(Sketcher.Constraint("Coincident", 43, 2, 40, 1))
sketch3.addConstraint(Sketcher.Constraint("Coincident", 44, 2, 45, 1))
sketch3.addConstraint(Sketcher.Constraint("Coincident", 45, 2, 46, 1))
sketch3.addConstraint(Sketcher.Constraint("Coincident", 46, 2, 47, 1))
sketch3.addConstraint(Sketcher.Constraint("Coincident", 47, 2, 44, 1))
sketch3.addConstraint(Sketcher.Constraint("Coincident", 48, 2, 49, 1))
sketch3.addConstraint(Sketcher.Constraint("Coincident", 49, 2, 50, 1))
sketch3.addConstraint(Sketcher.Constraint("Coincident", 50, 2, 51, 1))
sketch3.addConstraint(Sketcher.Constraint("Coincident", 51, 2, 48, 1))
sketch3.addConstraint(Sketcher.Constraint("Coincident", 52, 2, 53, 1))
sketch3.addConstraint(Sketcher.Constraint("Coincident", 53, 2, 54, 1))
sketch3.addConstraint(Sketcher.Constraint("Coincident", 54, 2, 55, 1))
sketch3.addConstraint(Sketcher.Constraint("Coincident", 55, 2, 52, 1))
sketch3.addConstraint(Sketcher.Constraint("Coincident", 56, 2, 57, 1))
sketch3.addConstraint(Sketcher.Constraint("Coincident", 57, 2, 58, 1))
sketch3.addConstraint(Sketcher.Constraint("Coincident", 58, 2, 59, 1))
sketch3.addConstraint(Sketcher.Constraint("Coincident", 59, 2, 56, 1))
sketch3.addConstraint(Sketcher.Constraint("Vertical", 33))
sketch3.addConstraint(Sketcher.Constraint("Vertical", 35))
sketch3.addConstraint(Sketcher.Constraint("Vertical", 37))
sketch3.addConstraint(Sketcher.Constraint("Vertical", 39))
sketch3.addConstraint(Sketcher.Constraint("Vertical", 41))
sketch3.addConstraint(Sketcher.Constraint("Vertical", 43))
sketch3.addConstraint(Sketcher.Constraint("Vertical", 45))
sketch3.addConstraint(Sketcher.Constraint("Vertical", 47))
sketch3.addConstraint(Sketcher.Constraint("Vertical", 49))
sketch3.addConstraint(Sketcher.Constraint("Vertical", 51))
sketch3.addConstraint(Sketcher.Constraint("Vertical", 53))
sketch3.addConstraint(Sketcher.Constraint("Vertical", 55))
sketch3.addConstraint(Sketcher.Constraint("Vertical", 57))
sketch3.addConstraint(Sketcher.Constraint("Vertical", 59))
sketch3.addConstraint(Sketcher.Constraint("Parallel", 0, 2))
sketch3.addConstraint(Sketcher.Constraint("Parallel", 2, 4))
sketch3.addConstraint(Sketcher.Constraint("Parallel", 1, 5))
sketch3.addConstraint(Sketcher.Constraint("Parallel", 4, 6))
sketch3.addConstraint(Sketcher.Constraint("Parallel", 3, 7))
sketch3.addConstraint(Sketcher.Constraint("Parallel", 6, 8))
sketch3.addConstraint(Sketcher.Constraint("Parallel", 5, 9))
sketch3.addConstraint(Sketcher.Constraint("Parallel", 8, 10))
sketch3.addConstraint(Sketcher.Constraint("Parallel", 7, 11))
sketch3.addConstraint(Sketcher.Constraint("Parallel", 10, 12))
sketch3.addConstraint(Sketcher.Constraint("Parallel", 9, 13))
sketch3.addConstraint(Sketcher.Constraint("Parallel", 12, 14))
sketch3.addConstraint(Sketcher.Constraint("Parallel", 11, 15))
sketch3.addConstraint(Sketcher.Constraint("Parallel", 14, 16))
sketch3.addConstraint(Sketcher.Constraint("Parallel", 13, 17))
sketch3.addConstraint(Sketcher.Constraint("Parallel", 16, 18))
sketch3.addConstraint(Sketcher.Constraint("Parallel", 15, 19))
sketch3.addConstraint(Sketcher.Constraint("Parallel", 18, 20))
sketch3.addConstraint(Sketcher.Constraint("Parallel", 17, 21))
sketch3.addConstraint(Sketcher.Constraint("Parallel", 20, 22))
sketch3.addConstraint(Sketcher.Constraint("Parallel", 19, 23))
sketch3.addConstraint(Sketcher.Constraint("Parallel", 22, 24))
sketch3.addConstraint(Sketcher.Constraint("Parallel", 21, 25))
sketch3.addConstraint(Sketcher.Constraint("Parallel", 24, 26))
sketch3.addConstraint(Sketcher.Constraint("Parallel", 23, 27))
sketch3.addConstraint(Sketcher.Constraint("Parallel", 26, 28))
sketch3.addConstraint(Sketcher.Constraint("Parallel", 25, 29))
sketch3.addConstraint(Sketcher.Constraint("Parallel", 28, 30))
sketch3.addConstraint(Sketcher.Constraint("Parallel", 27, 31))
sketch3.addConstraint(Sketcher.Constraint("Parallel", 32, 36))
sketch3.addConstraint(Sketcher.Constraint("Parallel", 34, 38))
sketch3.addConstraint(Sketcher.Constraint("Parallel", 36, 40))
sketch3.addConstraint(Sketcher.Constraint("Parallel", 38, 42))
sketch3.addConstraint(Sketcher.Constraint("Parallel", 40, 44))
sketch3.addConstraint(Sketcher.Constraint("Parallel", 42, 46))
sketch3.addConstraint(Sketcher.Constraint("Parallel", 44, 48))
sketch3.addConstraint(Sketcher.Constraint("Parallel", 46, 50))
sketch3.addConstraint(Sketcher.Constraint("Parallel", 48, 52))
sketch3.addConstraint(Sketcher.Constraint("Parallel", 50, 54))
sketch3.addConstraint(Sketcher.Constraint("Parallel", 54, 56))
sketch3.addConstraint(Sketcher.Constraint("Parallel", 52, 58))
sketch3.addConstraint(Sketcher.Constraint("Vertical", 33, 2, 36, 2))
sketch3.addConstraint(Sketcher.Constraint("Vertical", 35, 2, 38, 2))
sketch3.addConstraint(Sketcher.Constraint("Vertical", 37, 2, 40, 2))
sketch3.addConstraint(Sketcher.Constraint("Vertical", 39, 2, 42, 2))
sketch3.addConstraint(Sketcher.Constraint("Vertical", 41, 2, 44, 2))
sketch3.addConstraint(Sketcher.Constraint("Vertical", 43, 2, 46, 2))
sketch3.addConstraint(Sketcher.Constraint("Vertical", 45, 2, 48, 2))
sketch3.addConstraint(Sketcher.Constraint("Vertical", 47, 2, 50, 2))
sketch3.addConstraint(Sketcher.Constraint("Vertical", 49, 2, 52, 2))
sketch3.addConstraint(Sketcher.Constraint("Vertical", 51, 2, 54, 2))
sketch3.addConstraint(Sketcher.Constraint("Vertical", 55, 2, 56, 2))
sketch3.addConstraint(Sketcher.Constraint("Vertical", 53, 2, 58, 2))
sketch3.addConstraint(Sketcher.Constraint("Equal", 33, 37))
sketch3.addConstraint(Sketcher.Constraint("Equal", 37, 41))
sketch3.addConstraint(Sketcher.Constraint("Equal", 41, 45))
sketch3.addConstraint(Sketcher.Constraint("Equal", 45, 49))
sketch3.addConstraint(Sketcher.Constraint("Equal", 49, 53))
sketch3.addConstraint(Sketcher.Constraint("Equal", 55, 57))
sketch3.addConstraint(Sketcher.Constraint("Equal", 1, 3))
sketch3.addConstraint(Sketcher.Constraint("Equal", 0, 4))
sketch3.addConstraint(Sketcher.Constraint("Equal", 3, 5))
sketch3.addConstraint(Sketcher.Constraint("Equal", 4, 8))
sketch3.addConstraint(Sketcher.Constraint("Equal", 7, 9))
sketch3.addConstraint(Sketcher.Constraint("Equal", 8, 12))
sketch3.addConstraint(Sketcher.Constraint("Equal", 11, 13))
sketch3.addConstraint(Sketcher.Constraint("Equal", 12, 16))
sketch3.addConstraint(Sketcher.Constraint("Equal", 15, 17))
sketch3.addConstraint(Sketcher.Constraint("Equal", 16, 20))
sketch3.addConstraint(Sketcher.Constraint("Equal", 19, 21))
sketch3.addConstraint(Sketcher.Constraint("Equal", 20, 24))
sketch3.addConstraint(Sketcher.Constraint("Equal", 23, 25))
sketch3.addConstraint(Sketcher.Constraint("Equal", 24, 28))
sketch3.addConstraint(Sketcher.Constraint("Equal", 27, 29))
sketch3.addConstraint(Sketcher.Constraint("Equal", 31, 32))
sketch3.addConstraint(Sketcher.Constraint("Equal", 32, 34))
sketch3.addConstraint(Sketcher.Constraint("DistanceY", 35, 1, 35, 2, Q("1 in")))
sketch3.addConstraint(Sketcher.Constraint("Distance", 2, Q("1 in")))
sketch3.addConstraint(Sketcher.Constraint("DistanceX", 33, 2, 34, 2, Q("1 in")))
sketch3.addConstraint(Sketcher.Constraint("Distance", 1, Q("1.5 in")))
sketch3.addConstraint(Sketcher.Constraint("DistanceX", -1, 1, 32, 2, Q("50 in")))
sketch3.addConstraint(Sketcher.Constraint("Angle", 0, Q("-150 deg")))
sketch3.addConstraint(Sketcher.Constraint("Angle", 1, Q("-11.8103 deg")))
sketch3.addConstraint(Sketcher.Constraint("DistanceY", -1, 1, 0, 2, Q("45.403 in")))
sketch3.addConstraint(Sketcher.Constraint("DistanceX", -1, 1, 1, 2, Q("43.506 in")))
sketch3.addConstraint(Sketcher.Constraint("DistanceX", -1, 1, 6, 2, Q("38.767 in")))
sketch3.addConstraint(Sketcher.Constraint("DistanceY", -1, 1, 32, 2, Q("59.194 in")))
sketch3.addConstraint(Sketcher.Constraint("DistanceX", 10, 2, 5, 2, Q("4.739 in")))
sketch3.addConstraint(Sketcher.Constraint("DistanceX", 14, 2, 9, 2, Q("4.739 in")))
sketch3.addConstraint(Sketcher.Constraint("DistanceX", 18, 2, 13, 2, Q("4.739 in")))
sketch3.addConstraint(Sketcher.Constraint("DistanceX", 22, 2, 17, 2, Q("4.739 in")))
sketch3.addConstraint(Sketcher.Constraint("DistanceX", 26, 2, 21, 2, Q("4.739 in")))
sketch3.addConstraint(Sketcher.Constraint("DistanceX", 30, 2, 25, 2, Q("4.739 in")))
sketch3.addConstraint(Sketcher.Constraint("DistanceY", -1, 1, 11, 2, Q("40.5489 in")))
sketch3.addConstraint(Sketcher.Constraint("DistanceY", -1, 1, 12, 2, Q("35.6948 in")))
sketch3.addConstraint(Sketcher.Constraint("DistanceY", -1, 1, 23, 2, Q("30.8407 in")))
sketch3.addConstraint(Sketcher.Constraint("DistanceY", -1, 1, 24, 2, Q("25.9866 in")))
sketch3.addConstraint(Sketcher.Constraint("DistanceY", -1, 1, 29, 2, Q("22.4435 in")))
sketch3.addConstraint(Sketcher.Constraint("DistanceY", -1, 1, 38, 2, Q("63.5481 in")))
sketch3.addConstraint(Sketcher.Constraint("DistanceY", -1, 1, 52, 2, Q("91.5547 in")))
sketch3.addConstraint(Sketcher.Constraint("DistanceY", 4, 2, 3, 2, Q("4.8541 in")))
sketch3.addConstraint(Sketcher.Constraint("DistanceY", 16, 2, 15, 2, Q("4.8541 in")))
sketch3.addConstraint(Sketcher.Constraint("DistanceY", 37, 2, 40, 2, Q("9.7082 in")))
sketch3.addConstraint(Sketcher.Constraint("DistanceY", 41, 2, 44, 2, Q("9.7082 in")))
sketch3.addConstraint(Sketcher.Constraint("DistanceY", 45, 2, 48, 2, Q("9.7082 in")))
sketch3.addConstraint(Sketcher.Constraint("DistanceY", 52, 2, 56, 2, Q("4.3541 in")))
sketch3.setExpression("Constraints[150]", "Params.sketch3_height")
sketch3.setExpression("Constraints[151]", "Params.sketch3_length")
sketch3.setExpression("Constraints[153]", "Params.sketch3_length2")
pad2 = body.newObject("PartDesign::Pad", "Pad001")
pad2.Profile = sketch3
pad2.setExpression("Length", "Params.pad2_length")
pad2.Midplane = True

doc.recompute()
